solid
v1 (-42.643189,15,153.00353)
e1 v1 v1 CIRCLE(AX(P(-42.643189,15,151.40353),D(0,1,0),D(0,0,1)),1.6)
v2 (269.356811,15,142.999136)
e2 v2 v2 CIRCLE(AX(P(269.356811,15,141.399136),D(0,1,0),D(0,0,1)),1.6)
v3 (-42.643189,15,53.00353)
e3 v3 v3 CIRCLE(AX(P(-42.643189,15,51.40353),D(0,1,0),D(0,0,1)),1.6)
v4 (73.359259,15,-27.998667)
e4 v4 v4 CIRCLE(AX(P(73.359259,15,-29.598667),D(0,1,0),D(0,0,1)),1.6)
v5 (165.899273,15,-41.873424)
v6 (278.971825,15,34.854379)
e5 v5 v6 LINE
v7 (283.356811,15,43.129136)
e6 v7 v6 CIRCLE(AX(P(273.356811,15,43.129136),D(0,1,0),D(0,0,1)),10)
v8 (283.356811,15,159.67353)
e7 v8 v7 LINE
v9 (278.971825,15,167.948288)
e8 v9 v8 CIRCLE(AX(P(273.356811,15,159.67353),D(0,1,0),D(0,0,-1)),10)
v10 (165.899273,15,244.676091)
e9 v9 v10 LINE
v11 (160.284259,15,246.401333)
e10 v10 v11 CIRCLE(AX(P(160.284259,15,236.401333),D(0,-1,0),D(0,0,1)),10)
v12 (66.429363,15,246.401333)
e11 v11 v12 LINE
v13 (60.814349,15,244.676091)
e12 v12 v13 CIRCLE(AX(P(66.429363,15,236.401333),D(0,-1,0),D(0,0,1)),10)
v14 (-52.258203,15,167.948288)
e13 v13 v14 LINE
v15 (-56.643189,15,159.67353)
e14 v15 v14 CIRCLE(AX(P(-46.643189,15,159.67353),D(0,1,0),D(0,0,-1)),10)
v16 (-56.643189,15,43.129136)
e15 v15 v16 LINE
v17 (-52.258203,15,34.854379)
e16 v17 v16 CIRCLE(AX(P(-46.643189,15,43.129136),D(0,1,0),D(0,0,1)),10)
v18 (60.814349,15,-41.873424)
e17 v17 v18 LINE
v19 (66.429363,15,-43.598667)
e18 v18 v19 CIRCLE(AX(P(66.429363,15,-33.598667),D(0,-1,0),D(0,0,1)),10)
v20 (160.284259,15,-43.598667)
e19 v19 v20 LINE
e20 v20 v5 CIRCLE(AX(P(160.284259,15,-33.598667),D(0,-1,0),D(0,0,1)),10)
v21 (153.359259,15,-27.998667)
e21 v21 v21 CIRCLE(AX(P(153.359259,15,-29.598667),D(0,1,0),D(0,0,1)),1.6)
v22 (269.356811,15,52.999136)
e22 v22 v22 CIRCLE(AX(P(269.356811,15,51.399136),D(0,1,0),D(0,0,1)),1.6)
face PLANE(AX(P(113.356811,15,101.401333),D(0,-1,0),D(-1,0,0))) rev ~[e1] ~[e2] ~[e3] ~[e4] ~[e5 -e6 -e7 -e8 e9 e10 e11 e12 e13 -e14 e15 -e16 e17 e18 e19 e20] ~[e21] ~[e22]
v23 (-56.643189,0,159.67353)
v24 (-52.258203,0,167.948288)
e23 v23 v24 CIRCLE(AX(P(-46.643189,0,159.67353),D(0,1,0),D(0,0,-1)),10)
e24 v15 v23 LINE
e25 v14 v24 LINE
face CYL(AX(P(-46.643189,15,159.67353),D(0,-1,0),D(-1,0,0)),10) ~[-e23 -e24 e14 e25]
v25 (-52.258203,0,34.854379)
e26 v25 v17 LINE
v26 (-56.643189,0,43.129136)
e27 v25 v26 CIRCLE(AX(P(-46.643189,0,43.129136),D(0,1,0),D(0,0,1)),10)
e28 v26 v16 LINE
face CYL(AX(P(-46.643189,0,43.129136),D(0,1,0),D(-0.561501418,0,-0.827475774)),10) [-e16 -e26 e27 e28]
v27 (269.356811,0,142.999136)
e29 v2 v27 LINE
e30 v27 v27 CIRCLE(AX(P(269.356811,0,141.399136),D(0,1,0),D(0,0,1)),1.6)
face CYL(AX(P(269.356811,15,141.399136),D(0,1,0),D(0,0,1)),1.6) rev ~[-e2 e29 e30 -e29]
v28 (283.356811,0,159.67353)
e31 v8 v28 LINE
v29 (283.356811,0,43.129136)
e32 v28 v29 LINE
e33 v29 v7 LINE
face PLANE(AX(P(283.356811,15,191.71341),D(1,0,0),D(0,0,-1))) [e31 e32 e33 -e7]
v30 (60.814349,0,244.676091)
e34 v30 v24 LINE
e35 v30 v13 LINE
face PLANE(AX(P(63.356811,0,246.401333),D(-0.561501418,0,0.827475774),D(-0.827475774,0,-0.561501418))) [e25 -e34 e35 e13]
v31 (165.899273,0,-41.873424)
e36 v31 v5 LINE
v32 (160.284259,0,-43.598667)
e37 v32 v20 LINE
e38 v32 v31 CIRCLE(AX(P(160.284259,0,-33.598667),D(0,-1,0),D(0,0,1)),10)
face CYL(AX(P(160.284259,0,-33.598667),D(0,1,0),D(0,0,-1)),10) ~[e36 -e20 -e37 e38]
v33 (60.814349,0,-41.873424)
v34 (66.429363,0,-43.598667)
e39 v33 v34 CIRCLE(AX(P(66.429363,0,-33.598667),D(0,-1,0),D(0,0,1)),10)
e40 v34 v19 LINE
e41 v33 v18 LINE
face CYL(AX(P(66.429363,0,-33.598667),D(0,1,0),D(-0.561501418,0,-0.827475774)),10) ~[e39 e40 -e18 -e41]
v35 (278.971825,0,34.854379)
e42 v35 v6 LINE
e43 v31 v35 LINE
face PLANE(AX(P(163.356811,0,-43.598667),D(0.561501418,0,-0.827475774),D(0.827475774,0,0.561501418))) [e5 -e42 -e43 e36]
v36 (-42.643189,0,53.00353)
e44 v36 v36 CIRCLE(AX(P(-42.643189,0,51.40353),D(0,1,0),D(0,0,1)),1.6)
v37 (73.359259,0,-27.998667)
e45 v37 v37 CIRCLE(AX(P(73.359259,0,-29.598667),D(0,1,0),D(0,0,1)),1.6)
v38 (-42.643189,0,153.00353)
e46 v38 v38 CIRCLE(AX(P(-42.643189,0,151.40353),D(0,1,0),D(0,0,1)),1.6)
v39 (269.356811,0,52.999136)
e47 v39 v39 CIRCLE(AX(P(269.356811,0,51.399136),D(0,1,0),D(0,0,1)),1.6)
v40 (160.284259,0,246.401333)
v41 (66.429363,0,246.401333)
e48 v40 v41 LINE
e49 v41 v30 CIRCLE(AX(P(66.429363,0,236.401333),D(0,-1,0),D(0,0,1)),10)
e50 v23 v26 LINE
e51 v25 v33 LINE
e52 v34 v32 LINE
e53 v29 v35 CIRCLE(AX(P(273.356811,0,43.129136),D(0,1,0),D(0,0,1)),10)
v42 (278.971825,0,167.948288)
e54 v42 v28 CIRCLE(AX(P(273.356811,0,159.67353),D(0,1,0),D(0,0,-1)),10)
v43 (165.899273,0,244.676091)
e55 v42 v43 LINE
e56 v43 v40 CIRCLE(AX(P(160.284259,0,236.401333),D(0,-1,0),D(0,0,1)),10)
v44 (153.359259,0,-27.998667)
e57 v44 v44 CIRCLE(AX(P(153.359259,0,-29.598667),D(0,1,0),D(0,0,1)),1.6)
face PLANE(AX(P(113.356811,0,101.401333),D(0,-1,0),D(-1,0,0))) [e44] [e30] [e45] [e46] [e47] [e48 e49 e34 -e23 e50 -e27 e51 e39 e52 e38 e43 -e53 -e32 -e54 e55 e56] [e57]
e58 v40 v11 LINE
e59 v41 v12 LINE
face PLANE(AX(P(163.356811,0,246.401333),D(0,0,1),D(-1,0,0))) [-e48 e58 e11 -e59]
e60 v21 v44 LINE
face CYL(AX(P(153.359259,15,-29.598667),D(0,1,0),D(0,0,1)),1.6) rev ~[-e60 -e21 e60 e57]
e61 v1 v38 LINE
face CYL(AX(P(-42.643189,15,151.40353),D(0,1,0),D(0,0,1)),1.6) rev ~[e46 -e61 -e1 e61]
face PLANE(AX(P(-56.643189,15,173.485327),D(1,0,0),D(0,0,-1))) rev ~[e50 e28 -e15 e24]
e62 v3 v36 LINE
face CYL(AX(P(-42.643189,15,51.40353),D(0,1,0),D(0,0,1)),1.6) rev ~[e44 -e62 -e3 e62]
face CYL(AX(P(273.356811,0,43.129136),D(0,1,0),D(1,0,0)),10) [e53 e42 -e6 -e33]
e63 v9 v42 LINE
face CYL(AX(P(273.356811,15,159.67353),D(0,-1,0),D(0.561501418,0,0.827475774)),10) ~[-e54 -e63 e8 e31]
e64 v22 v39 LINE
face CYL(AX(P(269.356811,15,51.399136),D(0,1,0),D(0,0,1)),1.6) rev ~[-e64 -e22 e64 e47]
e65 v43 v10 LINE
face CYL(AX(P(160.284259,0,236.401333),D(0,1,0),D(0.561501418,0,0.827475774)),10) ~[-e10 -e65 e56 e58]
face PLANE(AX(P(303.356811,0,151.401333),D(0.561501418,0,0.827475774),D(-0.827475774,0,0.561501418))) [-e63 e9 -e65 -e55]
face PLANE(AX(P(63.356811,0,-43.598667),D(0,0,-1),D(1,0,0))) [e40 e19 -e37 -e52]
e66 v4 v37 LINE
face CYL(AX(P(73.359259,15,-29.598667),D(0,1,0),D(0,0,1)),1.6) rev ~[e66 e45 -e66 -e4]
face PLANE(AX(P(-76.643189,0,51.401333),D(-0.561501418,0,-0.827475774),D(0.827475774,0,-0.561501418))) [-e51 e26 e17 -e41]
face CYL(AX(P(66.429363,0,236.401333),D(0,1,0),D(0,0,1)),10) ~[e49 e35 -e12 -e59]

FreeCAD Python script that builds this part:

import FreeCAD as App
import Part
import Sketcher
from FreeCAD import Vector
Q = App.Units.Quantity


def edges_at(feature, points):
    """Names of the edges that pass closest to the given points."""
    edges = feature.Shape.Edges
    near = lambda p: min(range(len(edges)), key=lambda i: edges[i].distToShape(Part.Vertex(*p))[0])
    return sorted({f"Edge{near(p) + 1}" for p in points})

doc = App.newDocument("Part")
body = doc.addObject("PartDesign::Body", "Body")

# Sketch on XZ plane
sketch1 = body.newObject("Sketcher::SketchObject", "Sketch")
sketch1.AttachmentSupport = (doc.getObject("XZ_Plane"), [""])
sketch1.MapMode = "FlatFace"
sketch1.addGeometry(Part.LineSegment(Vector(63, -44, 0), Vector(-77, 51, 0)), False)
sketch1.addGeometry(Part.LineSegment(Vector(-77, 51, 0), Vector(-77, 151, 0)), False)
sketch1.addGeometry(Part.LineSegment(Vector(-77, 151, 0), Vector(63, 246, 0)), False)
sketch1.addGeometry(Part.LineSegment(Vector(63, 246, 0), Vector(163, 246, 0)), False)
sketch1.addGeometry(Part.LineSegment(Vector(163, 246, 0), Vector(303, 151, 0)), False)
sketch1.addGeometry(Part.LineSegment(Vector(303, 151, 0), Vector(303, 51, 0)), False)
sketch1.addGeometry(Part.LineSegment(Vector(303, 51, 0), Vector(163, -44, 0)), False)
sketch1.addGeometry(Part.LineSegment(Vector(163, -44, 0), Vector(63, -44, 0)), False)
sketch1.addConstraint(Sketcher.Constraint("Coincident", 0, 2, 1, 1))
sketch1.addConstraint(Sketcher.Constraint("Coincident", 1, 2, 2, 1))
sketch1.addConstraint(Sketcher.Constraint("Coincident", 2, 2, 3, 1))
sketch1.addConstraint(Sketcher.Constraint("Coincident", 3, 2, 4, 1))
sketch1.addConstraint(Sketcher.Constraint("Coincident", 4, 2, 5, 1))
sketch1.addConstraint(Sketcher.Constraint("Coincident", 5, 2, 6, 1))
sketch1.addConstraint(Sketcher.Constraint("Coincident", 6, 2, 7, 1))
sketch1.addConstraint(Sketcher.Constraint("Coincident", 7, 2, 0, 1))
sketch1.addConstraint(Sketcher.Constraint("Vertical", 1))
sketch1.addConstraint(Sketcher.Constraint("Horizontal", 3))
sketch1.addConstraint(Sketcher.Constraint("Vertical", 5))
sketch1.addConstraint(Sketcher.Constraint("Horizontal", 7))
sketch1.addConstraint(Sketcher.Constraint("Parallel", 0, 4))
sketch1.addConstraint(Sketcher.Constraint("Parallel", 2, 6))
sketch1.addConstraint(Sketcher.Constraint("Horizontal", 1, 2, 4, 2))
sketch1.addConstraint(Sketcher.Constraint("Horizontal", 0, 2, 5, 2))
sketch1.addConstraint(Sketcher.Constraint("Vertical", 3, 2, 6, 2))
sketch1.addConstraint(Sketcher.Constraint("Vertical", 2, 2, 7, 2))
sketch1.addConstraint(Sketcher.Constraint("Equal", 7, 1))
sketch1.addConstraint(Sketcher.Constraint("DistanceX", 3, 1, 3, 2, Q("100 mm")))
sketch1.addConstraint(Sketcher.Constraint("DistanceX", 1, 2, 2, 2, Q("140 mm")))
sketch1.addConstraint(Sketcher.Constraint("DistanceY", 1, 2, 2, 2, Q("95 mm")))
sketch1.addConstraint(Sketcher.Constraint("DistanceX", 0, 2, -1, 1, Q("76.643189 mm")))
sketch1.addConstraint(Sketcher.Constraint("DistanceY", -1, 1, 0, 2, Q("51.401333 mm")))
pad1 = body.newObject("PartDesign::Pad", "Pad")
pad1.Profile = sketch1
pad1.Length = 15
pad1.Reversed = True
doc.recompute()

fillet = body.newObject("PartDesign::Fillet", "Fillet")
fillet.Base = (pad1, edges_at(pad1, [
    (-76.643, 7.5, 51.401),
    (63.357, 7.5, -43.599),
    (163.357, 7.5, -43.599),
    (303.357, 7.5, 51.401),
    (303.357, 7.5, 151.401),
    (163.357, 7.5, 246.401),
    (63.357, 7.5, 246.401),
    (-76.643, 7.5, 151.401),
]))
fillet.Radius = 10

# Sketch on XZ plane
sketch2 = body.newObject("Sketcher::SketchObject", "Sketch001")
sketch2.AttachmentSupport = (doc.getObject("XZ_Plane"), [""])
sketch2.MapMode = "FlatFace"
sketch2.AttachmentOffset = App.Placement(Vector(0, 0, -15), App.Rotation())
sketch2.addGeometry(Part.LineSegment(Vector(-77, 30, 0), Vector(-77, 173, 0)), False)
sketch2.addGeometry(Part.LineSegment(Vector(-77, 173, 0), Vector(-57, 173, 0)), False)
sketch2.addGeometry(Part.LineSegment(Vector(-57, 173, 0), Vector(-57, 30, 0)), False)
sketch2.addGeometry(Part.LineSegment(Vector(-57, 30, 0), Vector(-77, 30, 0)), False)
sketch2.addConstraint(Sketcher.Constraint("Coincident", 0, 2, 1, 1))
sketch2.addConstraint(Sketcher.Constraint("Coincident", 1, 2, 2, 1))
sketch2.addConstraint(Sketcher.Constraint("Coincident", 2, 2, 3, 1))
sketch2.addConstraint(Sketcher.Constraint("Coincident", 3, 2, 0, 1))
sketch2.addConstraint(Sketcher.Constraint("Vertical", 0))
sketch2.addConstraint(Sketcher.Constraint("Horizontal", 1))
sketch2.addConstraint(Sketcher.Constraint("Vertical", 2))
sketch2.addConstraint(Sketcher.Constraint("Horizontal", 3))
sketch2.addConstraint(Sketcher.Constraint("DistanceX", 1, 1, 1, 2, Q("20 mm")))
sketch2.addConstraint(Sketcher.Constraint("DistanceY", 0, 1, 0, 2, Q("143.033455 mm")))
sketch2.addConstraint(Sketcher.Constraint("DistanceX", 0, 2, -1, 1, Q("76.643189 mm")))
sketch2.addConstraint(Sketcher.Constraint("DistanceY", -1, 1, 2, 2, Q("30.451872 mm")))
pocket1 = body.newObject("PartDesign::Pocket", "Pocket")
pocket1.Profile = sketch2
pocket1.Type = "UpToFirst"
pocket1.Reversed = True

# Sketch on XZ plane
sketch3 = body.newObject("Sketcher::SketchObject", "Sketch002")
sketch3.AttachmentSupport = (doc.getObject("XZ_Plane"), [""])
sketch3.MapMode = "FlatFace"
sketch3.AttachmentOffset = App.Placement(Vector(0, 0, -15), App.Rotation())
sketch3.addGeometry(Part.LineSegment(Vector(283, 10, 0), Vector(283, 192, 0)), False)
sketch3.addGeometry(Part.LineSegment(Vector(283, 192, 0), Vector(303, 192, 0)), False)
sketch3.addGeometry(Part.LineSegment(Vector(303, 192, 0), Vector(303, 10, 0)), False)
sketch3.addGeometry(Part.LineSegment(Vector(303, 10, 0), Vector(283, 10, 0)), False)
sketch3.addConstraint(Sketcher.Constraint("Coincident", 0, 2, 1, 1))
sketch3.addConstraint(Sketcher.Constraint("Coincident", 1, 2, 2, 1))
sketch3.addConstraint(Sketcher.Constraint("Coincident", 2, 2, 3, 1))
sketch3.addConstraint(Sketcher.Constraint("Coincident", 3, 2, 0, 1))
sketch3.addConstraint(Sketcher.Constraint("Vertical", 0))
sketch3.addConstraint(Sketcher.Constraint("Horizontal", 1))
sketch3.addConstraint(Sketcher.Constraint("Vertical", 2))
sketch3.addConstraint(Sketcher.Constraint("Horizontal", 3))
sketch3.addConstraint(Sketcher.Constraint("DistanceX", 1, 1, 1, 2, Q("20 mm")))
sketch3.addConstraint(Sketcher.Constraint("DistanceY", 0, 1, 0, 2, Q("181.308682 mm")))
sketch3.addConstraint(Sketcher.Constraint("DistanceX", -1, 1, 0, 2, Q("283.356811 mm")))
sketch3.addConstraint(Sketcher.Constraint("DistanceY", -1, 1, 0, 2, Q("191.71341 mm")))
pocket2 = body.newObject("PartDesign::Pocket", "Pocket001")
pocket2.Profile = sketch3
pocket2.Type = "UpToFirst"
pocket2.Reversed = True
doc.recompute()

fillet2 = body.newObject("PartDesign::Fillet", "Fillet001")
fillet2.Base = (pocket2, edges_at(pocket2, [
    (-56.643, 7.5, 37.83),
    (-56.643, 7.5, 164.973),
    (283.357, 7.5, 37.83),
    (283.357, 7.5, 164.973),
]))
fillet2.Radius = 10

# Sketch on XZ plane
sketch4 = body.newObject("Sketcher::SketchObject", "Sketch003")
sketch4.AttachmentSupport = (doc.getObject("XZ_Plane"), [""])
sketch4.MapMode = "FlatFace"
sketch4.AttachmentOffset = App.Placement(Vector(0, 0, -15), App.Rotation())
sketch4.addGeometry(Part.Circle(Vector(-42.6, 51.4, 0), Vector(0, 0, 1), 1.6), False)
sketch4.addConstraint(Sketcher.Constraint("Diameter", 0, Q("3.2 mm")))
sketch4.addConstraint(Sketcher.Constraint("DistanceX", 0, 3, -1, 1, Q("42.643189 mm")))
sketch4.addConstraint(Sketcher.Constraint("DistanceY", -1, 1, 0, 3, Q("51.40353 mm")))
pocket3 = body.newObject("PartDesign::Pocket", "Pocket002")
pocket3.Profile = sketch4
pocket3.Type = "UpToFirst"
pocket3.Reversed = True

# Sketch on XZ plane
sketch5 = body.newObject("Sketcher::SketchObject", "Sketch004")
sketch5.AttachmentSupport = (doc.getObject("XZ_Plane"), [""])
sketch5.MapMode = "FlatFace"
sketch5.AttachmentOffset = App.Placement(Vector(0, 0, -15), App.Rotation())
sketch5.addGeometry(Part.Circle(Vector(-42.6, 151.4, 0), Vector(0, 0, 1), 1.6), False)
sketch5.addConstraint(Sketcher.Constraint("Diameter", 0, Q("3.2 mm")))
sketch5.addConstraint(Sketcher.Constraint("DistanceX", 0, 3, -1, 1, Q("42.643189 mm")))
sketch5.addConstraint(Sketcher.Constraint("DistanceY", -1, 1, 0, 3, Q("151.40353 mm")))
pocket4 = body.newObject("PartDesign::Pocket", "Pocket003")
pocket4.Profile = sketch5
pocket4.Type = "UpToFirst"
pocket4.Reversed = True

# Sketch on XZ plane
sketch6 = body.newObject("Sketcher::SketchObject", "Sketch005")
sketch6.AttachmentSupport = (doc.getObject("XZ_Plane"), [""])
sketch6.MapMode = "FlatFace"
sketch6.AttachmentOffset = App.Placement(Vector(0, 0, -15), App.Rotation())
sketch6.addGeometry(Part.Circle(Vector(73.4, -29.6, 0), Vector(0, 0, 1), 1.6), False)
sketch6.addConstraint(Sketcher.Constraint("Diameter", 0, Q("3.2 mm")))
sketch6.addConstraint(Sketcher.Constraint("DistanceX", -1, 1, 0, 3, Q("73.359259 mm")))
sketch6.addConstraint(Sketcher.Constraint("DistanceY", 0, 3, -1, 1, Q("29.598667 mm")))
pocket5 = body.newObject("PartDesign::Pocket", "Pocket004")
pocket5.Profile = sketch6
pocket5.Type = "UpToFirst"
pocket5.Reversed = True

# Sketch on XZ plane
sketch7 = body.newObject("Sketcher::SketchObject", "Sketch006")
sketch7.AttachmentSupport = (doc.getObject("XZ_Plane"), [""])
sketch7.MapMode = "FlatFace"
sketch7.AttachmentOffset = App.Placement(Vector(0, 0, -15), App.Rotation())
sketch7.addGeometry(Part.Circle(Vector(153.4, -29.6, 0), Vector(0, 0, 1), 1.6), False)
sketch7.addConstraint(Sketcher.Constraint("Diameter", 0, Q("3.2 mm")))
sketch7.addConstraint(Sketcher.Constraint("DistanceX", -1, 1, 0, 3, Q("153.359259 mm")))
sketch7.addConstraint(Sketcher.Constraint("DistanceY", 0, 3, -1, 1, Q("29.598667 mm")))
pocket6 = body.newObject("PartDesign::Pocket", "Pocket005")
pocket6.Profile = sketch7
pocket6.Type = "UpToFirst"
pocket6.Reversed = True

# Sketch on XZ plane
sketch8 = body.newObject("Sketcher::SketchObject", "Sketch007")
sketch8.AttachmentSupport = (doc.getObject("XZ_Plane"), [""])
sketch8.MapMode = "FlatFace"
sketch8.AttachmentOffset = App.Placement(Vector(0, 0, -15), App.Rotation())
sketch8.addGeometry(Part.Circle(Vector(269.4, 51.4, 0), Vector(0, 0, 1), 1.6), False)
sketch8.addConstraint(Sketcher.Constraint("Diameter", 0, Q("3.2 mm")))
sketch8.addConstraint(Sketcher.Constraint("DistanceX", -1, 1, 0, 3, Q("269.356811 mm")))
sketch8.addConstraint(Sketcher.Constraint("DistanceY", -1, 1, 0, 3, Q("51.399136 mm")))
pocket7 = body.newObject("PartDesign::Pocket", "Pocket006")
pocket7.Profile = sketch8
pocket7.Type = "UpToFirst"
pocket7.Reversed = True

# Sketch on XZ plane
sketch9 = body.newObject("Sketcher::SketchObject", "Sketch008")
sketch9.AttachmentSupport = (doc.getObject("XZ_Plane"), [""])
sketch9.MapMode = "FlatFace"
sketch9.AttachmentOffset = App.Placement(Vector(0, 0, -15), App.Rotation())
sketch9.addGeometry(Part.Circle(Vector(269.4, 141.4, 0), Vector(0, 0, 1), 1.6), False)
sketch9.addConstraint(Sketcher.Constraint("Diameter", 0, Q("3.2 mm")))
sketch9.addConstraint(Sketcher.Constraint("DistanceX", -1, 1, 0, 3, Q("269.356811 mm")))
sketch9.addConstraint(Sketcher.Constraint("DistanceY", -1, 1, 0, 3, Q("141.399136 mm")))
pocket8 = body.newObject("PartDesign::Pocket", "Pocket007")
pocket8.Profile = sketch9
pocket8.Type = "UpToFirst"
pocket8.Reversed = True

doc.recompute()
